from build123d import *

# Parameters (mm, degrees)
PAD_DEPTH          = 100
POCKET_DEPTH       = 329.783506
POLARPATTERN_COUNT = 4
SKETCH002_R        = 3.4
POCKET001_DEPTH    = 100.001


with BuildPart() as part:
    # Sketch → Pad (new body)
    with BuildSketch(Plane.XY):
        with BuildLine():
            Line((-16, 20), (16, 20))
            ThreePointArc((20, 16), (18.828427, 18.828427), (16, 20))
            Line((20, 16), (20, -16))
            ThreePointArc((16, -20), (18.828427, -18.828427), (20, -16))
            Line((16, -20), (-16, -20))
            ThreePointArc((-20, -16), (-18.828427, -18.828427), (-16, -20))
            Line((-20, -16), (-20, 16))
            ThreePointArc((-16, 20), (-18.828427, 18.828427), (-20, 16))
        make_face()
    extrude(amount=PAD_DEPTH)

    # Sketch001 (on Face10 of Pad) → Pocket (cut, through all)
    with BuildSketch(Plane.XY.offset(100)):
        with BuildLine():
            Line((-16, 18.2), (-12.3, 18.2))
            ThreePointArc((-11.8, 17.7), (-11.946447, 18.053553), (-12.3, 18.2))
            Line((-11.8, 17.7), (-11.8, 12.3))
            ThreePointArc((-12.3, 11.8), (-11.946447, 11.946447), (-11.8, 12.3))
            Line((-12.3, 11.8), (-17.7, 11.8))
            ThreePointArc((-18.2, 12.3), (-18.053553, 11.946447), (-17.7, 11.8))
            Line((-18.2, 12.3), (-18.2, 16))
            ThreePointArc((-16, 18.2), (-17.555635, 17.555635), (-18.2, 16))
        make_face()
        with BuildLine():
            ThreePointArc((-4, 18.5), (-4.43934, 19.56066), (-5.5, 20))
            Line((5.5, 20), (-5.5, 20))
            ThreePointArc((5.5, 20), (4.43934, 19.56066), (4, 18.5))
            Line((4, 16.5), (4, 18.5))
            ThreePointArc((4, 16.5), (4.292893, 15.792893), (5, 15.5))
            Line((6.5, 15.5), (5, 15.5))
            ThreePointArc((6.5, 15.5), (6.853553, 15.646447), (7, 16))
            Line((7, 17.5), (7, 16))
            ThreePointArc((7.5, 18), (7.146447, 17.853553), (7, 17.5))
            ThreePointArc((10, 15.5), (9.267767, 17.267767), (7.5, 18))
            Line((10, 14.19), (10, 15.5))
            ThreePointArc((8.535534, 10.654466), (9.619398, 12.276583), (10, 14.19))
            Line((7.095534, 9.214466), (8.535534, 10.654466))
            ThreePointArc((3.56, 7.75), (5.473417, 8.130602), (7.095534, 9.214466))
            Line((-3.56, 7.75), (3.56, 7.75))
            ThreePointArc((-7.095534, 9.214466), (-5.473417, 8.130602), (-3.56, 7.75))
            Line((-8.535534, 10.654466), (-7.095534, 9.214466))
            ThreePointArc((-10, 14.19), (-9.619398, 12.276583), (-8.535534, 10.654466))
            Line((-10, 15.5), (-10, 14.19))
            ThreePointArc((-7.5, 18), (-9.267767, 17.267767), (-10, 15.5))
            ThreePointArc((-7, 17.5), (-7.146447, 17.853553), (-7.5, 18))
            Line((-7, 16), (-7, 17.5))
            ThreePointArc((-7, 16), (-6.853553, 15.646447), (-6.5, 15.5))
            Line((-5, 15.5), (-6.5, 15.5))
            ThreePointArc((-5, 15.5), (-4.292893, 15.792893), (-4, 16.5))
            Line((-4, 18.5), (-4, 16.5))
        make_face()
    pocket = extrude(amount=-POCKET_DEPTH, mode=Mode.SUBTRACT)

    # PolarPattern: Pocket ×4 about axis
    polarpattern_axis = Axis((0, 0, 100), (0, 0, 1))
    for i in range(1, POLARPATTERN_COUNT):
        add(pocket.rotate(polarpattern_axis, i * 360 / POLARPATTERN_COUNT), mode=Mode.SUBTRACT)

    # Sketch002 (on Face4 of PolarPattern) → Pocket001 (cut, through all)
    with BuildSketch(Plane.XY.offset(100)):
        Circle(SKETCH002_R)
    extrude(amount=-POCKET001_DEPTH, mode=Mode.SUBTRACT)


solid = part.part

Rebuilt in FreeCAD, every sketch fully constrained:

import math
import FreeCAD as App
import Part
import Sketcher

V = App.Vector
Q = App.Units.Quantity

doc = App.newDocument("Part")
body = doc.addObject("PartDesign::Body", "Body")

sketch1 = body.newObject("Sketcher::SketchObject", "Sketch")
sketch1.AttachmentSupport = (doc.getObject("XY_Plane"), [""])
sketch1.MapMode = "FlatFace"
sketch1.addGeometry([
    Part.LineSegment(V(16, 20, 0), V(-16, 20, 0)),
    Part.ArcOfCircle(Part.Circle(V(-16, 16, 0), V(0, 0, 1), 4), math.radians(90), math.radians(180)),
    Part.LineSegment(V(-20, 16, 0), V(-20, -16, 0)),
    Part.ArcOfCircle(Part.Circle(V(-16, -16, 0), V(0, 0, 1), 4), math.radians(-180), math.radians(-90)),
    Part.LineSegment(V(-16, -20, 0), V(16, -20, 0)),
    Part.ArcOfCircle(Part.Circle(V(16, -16, 0), V(0, 0, 1), 4), math.radians(-90), math.radians(0)),
    Part.LineSegment(V(20, -16, 0), V(20, 16, 0)),
    Part.ArcOfCircle(Part.Circle(V(16, 16, 0), V(0, 0, 1), 4), math.radians(0), math.radians(90)),
], False)
sketch1.addConstraint([
    Sketcher.Constraint("Tangent", 0, 2, 1, 1),
    Sketcher.Constraint("Tangent", 1, 2, 2, 1),
    Sketcher.Constraint("Tangent", 2, 2, 3, 1),
    Sketcher.Constraint("Tangent", 3, 2, 4, 1),
    Sketcher.Constraint("Tangent", 4, 2, 5, 1),
    Sketcher.Constraint("Tangent", 5, 2, 6, 1),
    Sketcher.Constraint("Tangent", 6, 2, 7, 1),
    Sketcher.Constraint("Tangent", 7, 2, 0, 1),
    Sketcher.Constraint("Horizontal", 0),
    Sketcher.Constraint("Vertical", 2),
    Sketcher.Constraint("Horizontal", 4),
    Sketcher.Constraint("Vertical", 6),
    Sketcher.Constraint("Equal", 1, 3),
    Sketcher.Constraint("Equal", 3, 5),
    Sketcher.Constraint("Equal", 5, 7),
    Sketcher.Constraint("Symmetric", 1, 3, 5, 3, -1, 1),
    Sketcher.Constraint("Equal", 4, 2),
    Sketcher.Constraint("Radius", 1, Q("4 mm")),
    Sketcher.Constraint("DistanceX", 0, 2, 0, 1, Q("32 mm")),
])
pad1 = body.newObject("PartDesign::Pad", "Pad")
pad1.Profile = sketch1
pad1.Length = 100

sketch2 = body.newObject("Sketcher::SketchObject", "Sketch001")
sketch2.AttachmentSupport = (doc.getObject("XY_Plane"), [""])
sketch2.MapMode = "FlatFace"
sketch2.AttachmentOffset = App.Placement(V(0, 0, 100), App.Rotation())
sketch2.addGeometry([
    Part.LineSegment(V(-12.3, 18.2, 0), V(-16, 18.2, 0)),
    Part.ArcOfCircle(Part.Circle(V(-16, 16, 0), V(0, 0, 1), 2.2), math.radians(90), math.radians(180)),
    Part.LineSegment(V(-18.2, 16, 0), V(-18.2, 12.3, 0)),
    Part.ArcOfCircle(Part.Circle(V(-17.7, 12.3, 0), V(0, 0, 1), 0.5), math.radians(-180), math.radians(-90)),
    Part.LineSegment(V(-17.7, 11.8, 0), V(-12.3, 11.8, 0)),
    Part.ArcOfCircle(Part.Circle(V(-12.3, 12.3, 0), V(0, 0, 1), 0.5), math.radians(-90), math.radians(0)),
    Part.LineSegment(V(-11.8, 12.3, 0), V(-11.8, 17.7, 0)),
    Part.ArcOfCircle(Part.Circle(V(-12.3, 17.7, 0), V(0, 0, 1), 0.5), math.radians(0), math.radians(90)),
    Part.ArcOfCircle(Part.Circle(V(-5.5, 18.5, 0), V(0, 0, 1), 1.5), math.radians(0), math.radians(90)),
    Part.LineSegment(V(-4, 18.5, 0), V(-4, 16.5, 0)),
    Part.ArcOfCircle(Part.Circle(V(-5, 16.5, 0), V(0, 0, 1), 1), math.radians(-90), math.radians(0)),
    Part.LineSegment(V(-5, 15.5, 0), V(-6.5, 15.5, 0)),
    Part.ArcOfCircle(Part.Circle(V(-6.5, 16, 0), V(0, 0, 1), 0.5), math.radians(-180), math.radians(-90)),
    Part.LineSegment(V(-7, 16, 0), V(-7, 17.5, 0)),
    Part.ArcOfCircle(Part.Circle(V(-7.5, 17.5, 0), V(0, 0, 1), 0.5), math.radians(0), math.radians(90)),
    Part.ArcOfCircle(Part.Circle(V(-7.5, 15.5, 0), V(0, 0, 1), 2.5), math.radians(90), math.radians(180)),
    Part.LineSegment(V(-10, 15.5, 0), V(-10, 14.2, 0)),
    Part.ArcOfCircle(Part.Circle(V(-5, 14.2, 0), V(0, 0, 1), 5), math.radians(180), math.radians(225)),
    Part.LineSegment(V(-8.5, 10.7, 0), V(-7.1, 9.2, 0)),
    Part.ArcOfCircle(Part.Circle(V(-3.6, 12.7, 0), V(0, 0, 1), 5), math.radians(-135), math.radians(-90)),
    Part.LineSegment(V(-3.6, 7.8, 0), V(3.6, 7.8, 0)),
    Part.ArcOfCircle(Part.Circle(V(3.6, 12.7, 0), V(0, 0, 1), 5), math.radians(-90), math.radians(-45)),
    Part.LineSegment(V(7.1, 9.2, 0), V(8.5, 10.7, 0)),
    Part.ArcOfCircle(Part.Circle(V(5, 14.2, 0), V(0, 0, 1), 5), math.radians(-45), math.radians(0)),
    Part.LineSegment(V(10, 14.2, 0), V(10, 15.5, 0)),
    Part.ArcOfCircle(Part.Circle(V(7.5, 15.5, 0), V(0, 0, 1), 2.5), math.radians(0), math.radians(90)),
    Part.ArcOfCircle(Part.Circle(V(7.5, 17.5, 0), V(0, 0, 1), 0.5), math.radians(90), math.radians(180)),
    Part.LineSegment(V(7, 17.5, 0), V(7, 16, 0)),
    Part.ArcOfCircle(Part.Circle(V(6.5, 16, 0), V(0, 0, 1), 0.5), math.radians(-90), math.radians(0)),
    Part.LineSegment(V(6.5, 15.5, 0), V(5, 15.5, 0)),
    Part.ArcOfCircle(Part.Circle(V(5, 16.5, 0), V(0, 0, 1), 1), math.radians(180), math.radians(270)),
    Part.LineSegment(V(4, 16.5, 0), V(4, 18.5, 0)),
    Part.ArcOfCircle(Part.Circle(V(5.5, 18.5, 0), V(0, 0, 1), 1.5), math.radians(90), math.radians(180)),
    Part.LineSegment(V(5.5, 20, 0), V(-5.5, 20, 0)),
], False)
sketch2.addConstraint([
    Sketcher.Constraint("Tangent", 0, 2, 1, 1),
    Sketcher.Constraint("Tangent", 1, 2, 2, 1),
    Sketcher.Constraint("Coincident", 2, 2, 3, 1),
    Sketcher.Constraint("Coincident", 3, 2, 4, 1),
    Sketcher.Constraint("Coincident", 4, 2, 5, 1),
    Sketcher.Constraint("Coincident", 5, 2, 6, 1),
    Sketcher.Constraint("Coincident", 6, 2, 7, 1),
    Sketcher.Constraint("Coincident", 7, 2, 0, 1),
    Sketcher.Constraint("Tangent", 8, 1, 9, 1),
    Sketcher.Constraint("Tangent", 9, 2, 10, 2),
    Sketcher.Constraint("Tangent", 10, 1, 11, 1),
    Sketcher.Constraint("Coincident", 11, 2, 12, 2),
    Sketcher.Constraint("Coincident", 12, 1, 13, 1),
    Sketcher.Constraint("Coincident", 13, 2, 14, 1),
    Sketcher.Constraint("Coincident", 14, 2, 15, 1),
    Sketcher.Constraint("Tangent", 15, 2, 16, 1),
    Sketcher.Constraint("Tangent", 16, 2, 17, 1),
    Sketcher.Constraint("Tangent", 17, 2, 18, 1),
    Sketcher.Constraint("Tangent", 18, 2, 19, 1),
    Sketcher.Constraint("Tangent", 19, 2, 20, 1),
    Sketcher.Constraint("Tangent", 20, 2, 21, 1),
    Sketcher.Constraint("Tangent", 21, 2, 22, 1),
    Sketcher.Constraint("Tangent", 22, 2, 23, 1),
    Sketcher.Constraint("Tangent", 23, 2, 24, 1),
    Sketcher.Constraint("Tangent", 24, 2, 25, 1),
    Sketcher.Constraint("Coincident", 25, 2, 26, 1),
    Sketcher.Constraint("Coincident", 26, 2, 27, 1),
    Sketcher.Constraint("Coincident", 27, 2, 28, 2),
    Sketcher.Constraint("Coincident", 28, 1, 29, 1),
    Sketcher.Constraint("Tangent", 29, 2, 30, 2),
    Sketcher.Constraint("Tangent", 30, 1, 31, 1),
    Sketcher.Constraint("Tangent", 31, 2, 32, 2),
    Sketcher.Constraint("Tangent", 32, 1, 33, 1),
    Sketcher.Constraint("Tangent", 33, 2, 8, 2),
    Sketcher.Constraint("Horizontal", 0),
    Sketcher.Constraint("Vertical", 2),
    Sketcher.Constraint("Horizontal", 4),
    Sketcher.Constraint("Vertical", 6),
    Sketcher.Constraint("Vertical", 9),
    Sketcher.Constraint("Horizontal", 11),
    Sketcher.Constraint("Vertical", 13),
    Sketcher.Constraint("Vertical", 16),
    Sketcher.Constraint("Horizontal", 20),
    Sketcher.Constraint("Vertical", 24),
    Sketcher.Constraint("Vertical", 27),
    Sketcher.Constraint("Horizontal", 29),
    Sketcher.Constraint("Vertical", 31),
    Sketcher.Constraint("Horizontal", 33),
    Sketcher.Constraint("Equal", 3, 5),
    Sketcher.Constraint("Equal", 5, 7),
    Sketcher.Constraint("Equal", 7, 12),
    Sketcher.Constraint("Equal", 12, 14),
    Sketcher.Constraint("Equal", 17, 19),
    Sketcher.Constraint("Equal", 19, 21),
    Sketcher.Constraint("Equal", 21, 23),
    Sketcher.Constraint("Equal", 15, 25),
    Sketcher.Constraint("Equal", 14, 26),
    Sketcher.Constraint("Equal", 26, 28),
    Sketcher.Constraint("Equal", 10, 30),
    Sketcher.Constraint("Equal", 8, 32),
    Sketcher.Constraint("Symmetric", 17, 3, 23, 3, -2),
    Sketcher.Constraint("Symmetric", 14, 3, 26, 3, -2),
    Sketcher.Constraint("Symmetric", 10, 3, 30, 3, -2),
    Sketcher.Constraint("Perpendicular", 18, 22),
    Sketcher.Constraint("Horizontal", 1, 3, 12, 3),
    Sketcher.Constraint("Horizontal", 5, 3, 2, 2),
    Sketcher.Constraint("Horizontal", 2, 2, 5, 2),
    Sketcher.Constraint("Horizontal", 7, 3, 6, 2),
    Sketcher.Constraint("Horizontal", 25, 3, 10, 1),
    Sketcher.Constraint("Horizontal", 1, 2, 12, 1),
    Sketcher.Constraint("Horizontal", 26, 3, 13, 2),
    Sketcher.Constraint("Horizontal", 18, 2, 21, 2),
    Sketcher.Constraint("Horizontal", 13, 2, 26, 2),
    Sketcher.Constraint("Horizontal", 12, 1, 27, 2),
    Sketcher.Constraint("Vertical", 14, 3, 15, 3),
    Sketcher.Constraint("Vertical", 7, 3, 4, 2),
    Sketcher.Constraint("Vertical", 4, 2, 7, 2),
    Sketcher.Constraint("Vertical", 12, 3, 11, 2),
    Sketcher.Constraint("Vertical", 15, 3, 14, 2),
    Sketcher.Constraint("Vertical", 26, 3, 25, 2),
    Sketcher.Constraint("Equal", 11, 29),
    Sketcher.Constraint("Equal", 0, 2),
    Sketcher.Constraint("Equal", 4, 6),
    Sketcher.Constraint("Equal", 29, 13),
    Sketcher.Constraint("Radius", 10, Q("0.999999 mm")),
    Sketcher.Constraint("Radius", 1, Q("2.2 mm")),
    Sketcher.Constraint("Radius", 3, Q("0.500001 mm")),
    Sketcher.Constraint("Radius", 8, Q("1.500001 mm")),
    Sketcher.Constraint("Radius", 15, Q("2.5 mm")),
    Sketcher.Constraint("DistanceX", 33, 2, 33, 1, Q("11 mm")),
    Sketcher.Constraint("DistanceY", 9, 2, 9, 1, Q("2 mm")),
    Sketcher.Constraint("DistanceX", 0, 2, 0, 1, Q("3.7 mm")),
    Sketcher.Constraint("DistanceX", 1, 3, -1, 1, Q("16 mm")),
    Sketcher.Constraint("DistanceY", -1, 1, 1, 3, Q("16 mm")),
    Sketcher.Constraint("DistanceX", 10, 3, 23, 3, Q("10.000001 mm")),
    Sketcher.Constraint("DistanceX", 20, 1, 20, 2, Q("7.12 mm")),
    Sketcher.Constraint("DistanceY", 16, 2, 16, 1, Q("1.31 mm")),
])
pocket1 = body.newObject("PartDesign::Pocket", "Pocket")
pocket1.Profile = sketch2
pocket1.Type = "ThroughAll"
doc.recompute()

polarpattern = body.newObject("PartDesign::PolarPattern", "PolarPattern")
polarpattern.Originals = [pocket1]
polarpattern.Axis = (doc.getObject("Z_Axis"), [""])
polarpattern.Angle = 360
polarpattern.Occurrences = 4
body.Tip = polarpattern

sketch3 = body.newObject("Sketcher::SketchObject", "Sketch002")
sketch3.AttachmentSupport = (doc.getObject("XY_Plane"), [""])
sketch3.MapMode = "FlatFace"
sketch3.AttachmentOffset = App.Placement(V(0, 0, 100), App.Rotation())
sketch3.addGeometry(Part.Circle(V(0, 0, 0), V(0, 0, 1), 3.4), False)
sketch3.addConstraint([
    Sketcher.Constraint("Coincident", 0, 3, -1, 1),
    Sketcher.Constraint("Diameter", 0, Q("6.8 mm")),
])
pocket2 = body.newObject("PartDesign::Pocket", "Pocket001")
pocket2.Profile = sketch3
pocket2.Type = "ThroughAll"

doc.recompute()
